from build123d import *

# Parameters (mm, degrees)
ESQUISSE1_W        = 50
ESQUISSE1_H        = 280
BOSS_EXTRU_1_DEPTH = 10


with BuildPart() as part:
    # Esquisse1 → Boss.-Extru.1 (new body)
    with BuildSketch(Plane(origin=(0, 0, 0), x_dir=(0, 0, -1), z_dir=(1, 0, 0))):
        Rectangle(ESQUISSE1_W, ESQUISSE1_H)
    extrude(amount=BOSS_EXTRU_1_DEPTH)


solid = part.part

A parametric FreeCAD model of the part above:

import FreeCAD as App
import Part
import Sketcher

V = App.Vector
Q = App.Units.Quantity

doc = App.newDocument("Part")
params = doc.addObject("Spreadsheet::Sheet", "Params")
for row, (alias, value) in enumerate([
    ("sketch1_width", "280 mm"),
    ("sketch1_height", "50 mm"),
    ("pad1_length", "10 mm"),
], start=1):
    params.set(f"A{row}", alias)
    params.set(f"B{row}", "=" + value)
    params.setAlias(f"B{row}", alias)

body = doc.addObject("PartDesign::Body", "Body")

# Sketch on YZ plane
sketch1 = doc.addObject("Sketcher::SketchObject", "Sketch")
body.addObject(sketch1)
sketch1.AttachmentSupport = (doc.YZ_Plane, [""])
sketch1.MapMode = "FlatFace"
sketch1.addGeometry(Part.LineSegment(V(140, 25, 0), V(-140, 25, 0)), False)
sketch1.addGeometry(Part.LineSegment(V(-140, 25, 0), V(-140, -25, 0)), False)
sketch1.addGeometry(Part.LineSegment(V(-140, -25, 0), V(140, -25, 0)), False)
sketch1.addGeometry(Part.LineSegment(V(140, -25, 0), V(140, 25, 0)), False)
sketch1.addConstraint(Sketcher.Constraint("Coincident", 0, 2, 1, 1))
sketch1.addConstraint(Sketcher.Constraint("Coincident", 1, 2, 2, 1))
sketch1.addConstraint(Sketcher.Constraint("Coincident", 2, 2, 3, 1))
sketch1.addConstraint(Sketcher.Constraint("Coincident", 3, 2, 0, 1))
sketch1.addConstraint(Sketcher.Constraint("Horizontal", 0))
sketch1.addConstraint(Sketcher.Constraint("Vertical", 1))
sketch1.addConstraint(Sketcher.Constraint("Horizontal", 2))
sketch1.addConstraint(Sketcher.Constraint("Vertical", 3))
sketch1.addConstraint(Sketcher.Constraint("Symmetric", 0, 2, 2, 2, -1, 1))
sketch1.addConstraint(Sketcher.Constraint("DistanceX", 0, 2, 0, 1, Q("280 mm")))
sketch1.addConstraint(Sketcher.Constraint("DistanceY", 1, 2, 1, 1, Q("50 mm")))
sketch1.setExpression("Constraints[9]", "Params.sketch1_width")
sketch1.setExpression("Constraints[10]", "Params.sketch1_height")
pad1 = doc.addObject("PartDesign::Pad", "Pad")
body.addObject(pad1)
pad1.Profile = sketch1
pad1.setExpression("Length", "Params.pad1_length")

doc.recompute()
